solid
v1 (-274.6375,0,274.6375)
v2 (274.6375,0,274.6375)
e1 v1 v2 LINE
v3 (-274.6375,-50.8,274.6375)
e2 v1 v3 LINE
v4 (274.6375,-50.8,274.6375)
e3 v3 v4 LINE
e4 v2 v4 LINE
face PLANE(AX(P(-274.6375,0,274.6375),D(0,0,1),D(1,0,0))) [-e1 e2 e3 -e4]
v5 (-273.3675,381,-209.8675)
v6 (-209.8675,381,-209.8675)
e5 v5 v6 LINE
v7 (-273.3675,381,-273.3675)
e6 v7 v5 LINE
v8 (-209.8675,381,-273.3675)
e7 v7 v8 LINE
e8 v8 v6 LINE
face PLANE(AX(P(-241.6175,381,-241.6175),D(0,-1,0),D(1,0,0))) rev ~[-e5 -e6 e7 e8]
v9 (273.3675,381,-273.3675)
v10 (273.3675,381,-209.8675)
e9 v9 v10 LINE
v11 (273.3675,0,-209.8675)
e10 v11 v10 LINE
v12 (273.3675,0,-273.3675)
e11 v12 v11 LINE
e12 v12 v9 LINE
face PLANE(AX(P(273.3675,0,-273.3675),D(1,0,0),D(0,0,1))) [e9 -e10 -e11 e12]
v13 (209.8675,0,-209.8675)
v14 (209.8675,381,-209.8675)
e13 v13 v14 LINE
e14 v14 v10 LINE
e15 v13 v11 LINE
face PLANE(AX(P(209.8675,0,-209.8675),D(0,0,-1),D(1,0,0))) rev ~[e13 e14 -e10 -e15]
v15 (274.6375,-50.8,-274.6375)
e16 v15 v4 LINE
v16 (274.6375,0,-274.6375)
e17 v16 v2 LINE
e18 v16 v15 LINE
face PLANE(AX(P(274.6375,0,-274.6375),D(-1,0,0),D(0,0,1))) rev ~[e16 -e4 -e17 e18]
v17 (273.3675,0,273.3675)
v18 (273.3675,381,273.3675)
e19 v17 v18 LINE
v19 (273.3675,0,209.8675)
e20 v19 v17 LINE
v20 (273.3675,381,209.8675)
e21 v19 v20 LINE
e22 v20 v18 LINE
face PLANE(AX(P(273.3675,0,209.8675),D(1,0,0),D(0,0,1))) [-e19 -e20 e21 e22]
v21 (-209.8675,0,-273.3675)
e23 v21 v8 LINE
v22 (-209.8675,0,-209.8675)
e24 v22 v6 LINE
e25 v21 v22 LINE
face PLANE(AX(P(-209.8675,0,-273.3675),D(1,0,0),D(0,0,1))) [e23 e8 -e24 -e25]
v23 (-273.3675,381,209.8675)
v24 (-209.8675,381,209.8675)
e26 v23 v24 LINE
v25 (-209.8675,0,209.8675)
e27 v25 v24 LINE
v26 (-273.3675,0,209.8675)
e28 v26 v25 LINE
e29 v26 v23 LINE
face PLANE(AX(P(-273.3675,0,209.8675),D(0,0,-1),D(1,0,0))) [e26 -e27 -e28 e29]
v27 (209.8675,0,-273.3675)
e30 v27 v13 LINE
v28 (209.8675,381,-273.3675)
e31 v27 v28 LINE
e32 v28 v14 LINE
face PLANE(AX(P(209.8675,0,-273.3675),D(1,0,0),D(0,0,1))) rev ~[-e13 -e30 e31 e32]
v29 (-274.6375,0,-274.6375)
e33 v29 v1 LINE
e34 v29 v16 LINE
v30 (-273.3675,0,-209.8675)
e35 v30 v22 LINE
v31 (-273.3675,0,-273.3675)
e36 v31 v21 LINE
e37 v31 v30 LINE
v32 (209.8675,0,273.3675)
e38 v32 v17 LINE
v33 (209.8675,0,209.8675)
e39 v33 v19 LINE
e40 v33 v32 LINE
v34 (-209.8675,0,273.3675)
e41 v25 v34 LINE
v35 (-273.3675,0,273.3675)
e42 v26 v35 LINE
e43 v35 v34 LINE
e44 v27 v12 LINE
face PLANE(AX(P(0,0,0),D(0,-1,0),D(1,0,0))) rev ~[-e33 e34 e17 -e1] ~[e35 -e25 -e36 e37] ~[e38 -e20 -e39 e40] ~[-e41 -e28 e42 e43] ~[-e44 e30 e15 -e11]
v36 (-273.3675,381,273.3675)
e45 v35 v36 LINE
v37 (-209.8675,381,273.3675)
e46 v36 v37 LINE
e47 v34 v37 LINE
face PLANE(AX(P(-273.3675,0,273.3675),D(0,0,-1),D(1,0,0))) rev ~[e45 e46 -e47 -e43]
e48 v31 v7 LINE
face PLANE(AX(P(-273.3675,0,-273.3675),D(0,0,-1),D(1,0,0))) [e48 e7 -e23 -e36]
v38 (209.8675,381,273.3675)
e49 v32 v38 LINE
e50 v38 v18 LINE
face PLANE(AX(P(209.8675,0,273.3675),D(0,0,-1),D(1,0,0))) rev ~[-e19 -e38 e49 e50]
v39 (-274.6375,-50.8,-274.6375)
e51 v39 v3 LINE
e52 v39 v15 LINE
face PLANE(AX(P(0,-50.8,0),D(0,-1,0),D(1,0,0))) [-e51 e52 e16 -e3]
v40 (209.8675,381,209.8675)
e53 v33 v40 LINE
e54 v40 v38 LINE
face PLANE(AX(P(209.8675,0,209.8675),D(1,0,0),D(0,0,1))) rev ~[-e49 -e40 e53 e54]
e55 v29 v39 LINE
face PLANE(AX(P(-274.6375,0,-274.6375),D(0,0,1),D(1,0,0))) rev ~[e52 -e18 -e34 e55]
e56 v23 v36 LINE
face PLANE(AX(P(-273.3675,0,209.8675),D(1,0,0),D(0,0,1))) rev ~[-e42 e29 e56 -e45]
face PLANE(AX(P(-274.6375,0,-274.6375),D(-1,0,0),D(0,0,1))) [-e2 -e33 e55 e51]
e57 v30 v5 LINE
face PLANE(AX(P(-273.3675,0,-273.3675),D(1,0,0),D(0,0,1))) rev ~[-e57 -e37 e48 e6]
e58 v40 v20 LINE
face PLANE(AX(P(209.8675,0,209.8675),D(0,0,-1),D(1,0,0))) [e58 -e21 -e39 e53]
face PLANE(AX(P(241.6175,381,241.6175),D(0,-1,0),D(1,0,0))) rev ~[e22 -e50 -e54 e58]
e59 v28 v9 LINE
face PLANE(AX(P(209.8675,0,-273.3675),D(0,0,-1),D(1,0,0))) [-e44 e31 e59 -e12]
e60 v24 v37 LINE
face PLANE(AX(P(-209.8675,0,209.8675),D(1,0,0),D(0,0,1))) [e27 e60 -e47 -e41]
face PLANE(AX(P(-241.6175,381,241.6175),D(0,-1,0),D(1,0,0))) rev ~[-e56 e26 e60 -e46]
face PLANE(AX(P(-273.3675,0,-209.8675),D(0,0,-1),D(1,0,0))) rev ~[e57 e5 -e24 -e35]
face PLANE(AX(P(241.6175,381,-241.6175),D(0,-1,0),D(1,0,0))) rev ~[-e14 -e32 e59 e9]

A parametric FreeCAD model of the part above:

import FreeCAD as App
import Part
import Sketcher
Q = App.Units.Quantity


def add_polygon(sketch, points):
    """Adds a closed chain of lines whose ends are joined by coincident constraints."""
    first, n = sketch.GeometryCount, len(points)
    for a, b in zip(points, points[1:] + points[:1]):
        sketch.addGeometry(Part.LineSegment(App.Vector(*a, 0), App.Vector(*b, 0)), False)
    for i in range(n):
        sketch.addConstraint(Sketcher.Constraint("Coincident", first + i, 2, first + (i + 1) % n, 1))

doc = App.newDocument("Part")
body = doc.addObject("PartDesign::Body", "Body")

sketch1 = doc.addObject("Sketcher::SketchObject", "Sketch")
body.addObject(sketch1)
sketch1.AttachmentSupport = (doc.XZ_Plane, [""])
sketch1.MapMode = "FlatFace"
add_polygon(sketch1, [(-275, 275), (-275, -275), (275, -275), (275, 275)])
sketch1.addConstraint([
    Sketcher.Constraint("Vertical", 0),
    Sketcher.Constraint("Horizontal", 1),
    Sketcher.Constraint("Vertical", 2),
    Sketcher.Constraint("Horizontal", 3),
    Sketcher.Constraint("Symmetric", 0, 2, 2, 2, -1, 1),
    Sketcher.Constraint("Equal", 3, 0),
    Sketcher.Constraint("DistanceX", 1, 1, 1, 2, Q("21.625 in")),
])
pad1 = doc.addObject("PartDesign::Pad", "Pad")
body.addObject(pad1)
pad1.Profile = sketch1
pad1.Length = Q("2 in")

sketch2 = doc.addObject("Sketcher::SketchObject", "Sketch001")
body.addObject(sketch2)
sketch2.AttachmentSupport = (doc.XZ_Plane, [""])
sketch2.MapMode = "FlatFace"
add_polygon(sketch2, [(-273, 273), (-273, 210), (-210, 210), (-210, 273)])
add_polygon(sketch2, [(210, 273), (210, 210), (273, 210), (273, 273)])
add_polygon(sketch2, [(210, -210), (210, -273), (273, -273), (273, -210)])
add_polygon(sketch2, [(-273, -210), (-273, -273), (-210, -273), (-210, -210)])
sketch2.addConstraint([
    Sketcher.Constraint("Vertical", 0),
    Sketcher.Constraint("Horizontal", 1),
    Sketcher.Constraint("Vertical", 2),
    Sketcher.Constraint("Horizontal", 3),
    Sketcher.Constraint("Vertical", 4),
    Sketcher.Constraint("Horizontal", 5),
    Sketcher.Constraint("Vertical", 6),
    Sketcher.Constraint("Horizontal", 7),
    Sketcher.Constraint("Vertical", 8),
    Sketcher.Constraint("Horizontal", 9),
    Sketcher.Constraint("Vertical", 10),
    Sketcher.Constraint("Horizontal", 11),
    Sketcher.Constraint("Vertical", 12),
    Sketcher.Constraint("Horizontal", 13),
    Sketcher.Constraint("Vertical", 14),
    Sketcher.Constraint("Horizontal", 15),
    Sketcher.Constraint("Symmetric", 2, 2, 8, 2, -1, 1),
    Sketcher.Constraint("Symmetric", 0, 2, 10, 2, -1, 1),
    Sketcher.Constraint("Symmetric", 6, 2, 12, 2, -1, 1),
    Sketcher.Constraint("Symmetric", 4, 2, 14, 2, -1, 1),
    Sketcher.Constraint("Symmetric", 1, 2, 4, 2, -2),
    Sketcher.Constraint("Symmetric", 3, 2, 6, 2, -2),
    Sketcher.Constraint("Equal", 15, 0),
    Sketcher.Constraint("DistanceX", 1, 1, 1, 2, Q("2.5 in")),
    Sketcher.Constraint("DistanceX", 1, 2, 4, 2, Q("16.525 in")),
    Sketcher.Constraint("DistanceY", 8, 2, 4, 2, Q("19.025 in")),
])
pad2 = doc.addObject("PartDesign::Pad", "Pad001")
body.addObject(pad2)
pad2.Profile = sketch2
pad2.Length = Q("15 in")
pad2.Reversed = True

doc.recompute()
